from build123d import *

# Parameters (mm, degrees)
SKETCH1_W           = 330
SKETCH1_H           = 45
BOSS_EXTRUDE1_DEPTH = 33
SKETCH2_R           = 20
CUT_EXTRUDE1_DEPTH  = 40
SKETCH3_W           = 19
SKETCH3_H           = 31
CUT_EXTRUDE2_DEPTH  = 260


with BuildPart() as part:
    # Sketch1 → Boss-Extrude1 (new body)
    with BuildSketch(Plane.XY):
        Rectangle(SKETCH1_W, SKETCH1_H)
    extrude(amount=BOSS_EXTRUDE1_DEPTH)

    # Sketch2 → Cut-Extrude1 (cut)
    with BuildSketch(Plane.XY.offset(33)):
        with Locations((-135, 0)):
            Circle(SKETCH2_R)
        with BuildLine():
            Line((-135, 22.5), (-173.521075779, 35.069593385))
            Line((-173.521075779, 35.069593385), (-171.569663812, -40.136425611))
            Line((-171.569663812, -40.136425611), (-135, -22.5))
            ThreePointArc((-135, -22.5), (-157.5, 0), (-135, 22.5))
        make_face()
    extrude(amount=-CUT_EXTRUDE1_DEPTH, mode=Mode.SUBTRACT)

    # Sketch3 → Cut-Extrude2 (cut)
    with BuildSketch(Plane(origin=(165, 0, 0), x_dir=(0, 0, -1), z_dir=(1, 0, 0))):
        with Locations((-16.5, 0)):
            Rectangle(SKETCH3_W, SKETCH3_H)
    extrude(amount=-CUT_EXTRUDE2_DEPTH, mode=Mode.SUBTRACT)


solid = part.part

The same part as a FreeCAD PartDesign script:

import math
import FreeCAD as App
import Part
import Sketcher

V = App.Vector
Q = App.Units.Quantity


def add_polygon(sketch, points):
    """Adds a closed chain of lines whose ends are joined by coincident constraints."""
    first, n = sketch.GeometryCount, len(points)
    for a, b in zip(points, points[1:] + points[:1]):
        sketch.addGeometry(Part.LineSegment(App.Vector(*a, 0), App.Vector(*b, 0)), False)
    for i in range(n):
        sketch.addConstraint(Sketcher.Constraint("Coincident", first + i, 2, first + (i + 1) % n, 1))

doc = App.newDocument("Part")
body = doc.addObject("PartDesign::Body", "Body")

sketch1 = doc.addObject("Sketcher::SketchObject", "Sketch")
body.addObject(sketch1)
sketch1.AttachmentSupport = (doc.XY_Plane, [""])
sketch1.MapMode = "FlatFace"
add_polygon(sketch1, [(-165, 22), (-165, -22), (165, -22), (165, 22)])
sketch1.addConstraint([
    Sketcher.Constraint("Vertical", 0),
    Sketcher.Constraint("Horizontal", 1),
    Sketcher.Constraint("Vertical", 2),
    Sketcher.Constraint("Horizontal", 3),
    Sketcher.Constraint("Symmetric", 0, 2, 2, 2, -1, 1),
    Sketcher.Constraint("DistanceX", 1, 1, 1, 2, Q("330 mm")),
    Sketcher.Constraint("DistanceY", 0, 2, 0, 1, Q("45 mm")),
])
pad1 = doc.addObject("PartDesign::Pad", "Pad")
body.addObject(pad1)
pad1.Profile = sketch1
pad1.Length = 33

sketch2 = doc.addObject("Sketcher::SketchObject", "Sketch001")
body.addObject(sketch2)
sketch2.AttachmentSupport = (doc.XY_Plane, [""])
sketch2.MapMode = "FlatFace"
sketch2.AttachmentOffset = App.Placement(V(0, 0, 33), App.Rotation())
sketch2.addGeometry([
    Part.Circle(V(-135, 0, 0), V(0, 0, 1), 20),
    Part.LineSegment(V(-135, 22, 0), V(-174, 35, 0)),
    Part.LineSegment(V(-174, 35, 0), V(-172, -40, 0)),
    Part.LineSegment(V(-172, -40, 0), V(-135, -22, 0)),
    Part.ArcOfCircle(Part.Circle(V(-135, 0, 0), V(0, 0, 1), 22), math.radians(90), math.radians(270)),
], False)
sketch2.addConstraint([
    Sketcher.Constraint("Coincident", 1, 2, 2, 1),
    Sketcher.Constraint("Coincident", 2, 2, 3, 1),
    Sketcher.Constraint("Coincident", 3, 2, 4, 2),
    Sketcher.Constraint("Coincident", 4, 1, 1, 1),
    Sketcher.Constraint("Coincident", 4, 3, 0, 3),
    Sketcher.Constraint("Symmetric", 3, 2, 4, 1, -1),
    Sketcher.Constraint("Vertical", 4, 3, 3, 2),
    Sketcher.Constraint("Diameter", 0, Q("40 mm")),
    Sketcher.Constraint("Radius", 4, Q("22.5 mm")),
    Sketcher.Constraint("DistanceX", 0, 3, -1, 1, Q("135 mm")),
    Sketcher.Constraint("Distance", 1, Q("40.51997 mm")),
    Sketcher.Constraint("Distance", 2, Q("75.231332 mm")),
    Sketcher.Constraint("DistanceX", 1, 2, 2, 2, Q("1.951412 mm")),
    Sketcher.Constraint("Distance", 3, Q("40.600293 mm")),
])
pocket1 = doc.addObject("PartDesign::Pocket", "Pocket")
body.addObject(pocket1)
pocket1.Profile = sketch2
pocket1.Length = 40

sketch3 = doc.addObject("Sketcher::SketchObject", "Sketch002")
body.addObject(sketch3)
sketch3.AttachmentSupport = (doc.YZ_Plane, [""])
sketch3.MapMode = "FlatFace"
sketch3.AttachmentOffset = App.Placement(V(0, 0, 165), App.Rotation())
add_polygon(sketch3, [(16, 26), (-16, 26), (-16, 7), (16, 7)])
sketch3.addConstraint([
    Sketcher.Constraint("Horizontal", 0),
    Sketcher.Constraint("Vertical", 1),
    Sketcher.Constraint("Horizontal", 2),
    Sketcher.Constraint("Vertical", 3),
    Sketcher.Constraint("DistanceX", 0, 2, 0, 1, Q("31 mm")),
    Sketcher.Constraint("DistanceY", 1, 2, 1, 1, Q("19 mm")),
    Sketcher.Constraint("DistanceY", -1, 1, 0, 2, Q("26 mm")),
    Sketcher.Constraint("DistanceX", 0, 2, -1, 1, Q("15.5 mm")),
])
pocket2 = doc.addObject("PartDesign::Pocket", "Pocket001")
body.addObject(pocket2)
pocket2.Profile = sketch3
pocket2.Length = 260

doc.recompute()
